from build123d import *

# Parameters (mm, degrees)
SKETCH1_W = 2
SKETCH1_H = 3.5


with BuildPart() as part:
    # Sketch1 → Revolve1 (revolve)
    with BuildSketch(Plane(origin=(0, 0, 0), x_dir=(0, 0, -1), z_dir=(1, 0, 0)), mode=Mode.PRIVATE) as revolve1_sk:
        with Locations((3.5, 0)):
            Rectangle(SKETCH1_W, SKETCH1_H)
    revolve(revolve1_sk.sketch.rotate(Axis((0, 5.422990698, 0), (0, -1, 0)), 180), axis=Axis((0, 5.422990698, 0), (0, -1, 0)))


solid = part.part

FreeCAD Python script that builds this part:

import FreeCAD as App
import Part
import Sketcher

V = App.Vector
Q = App.Units.Quantity


def add_polygon(sketch, points):
    """Adds a closed chain of lines whose ends are joined by coincident constraints."""
    first, n = sketch.GeometryCount, len(points)
    for a, b in zip(points, points[1:] + points[:1]):
        sketch.addGeometry(Part.LineSegment(App.Vector(*a, 0), App.Vector(*b, 0)), False)
    for i in range(n):
        sketch.addConstraint(Sketcher.Constraint("Coincident", first + i, 2, first + (i + 1) % n, 1))

doc = App.newDocument("Part")
body = doc.addObject("PartDesign::Body", "Body")

# Sketch on YZ plane
sketch1 = doc.addObject("Sketcher::SketchObject", "Sketch")
body.addObject(sketch1)
sketch1.AttachmentSupport = (doc.YZ_Plane, [""])
sketch1.MapMode = "FlatFace"
add_polygon(sketch1, [(1.75, -2.5), (-1.75, -2.5), (-1.75, -4.5), (1.75, -4.5)])  # lines 0-3
sketch1.addConstraint(Sketcher.Constraint("Horizontal", 0))
sketch1.addConstraint(Sketcher.Constraint("Vertical", 1))
sketch1.addConstraint(Sketcher.Constraint("Horizontal", 2))
sketch1.addConstraint(Sketcher.Constraint("Vertical", 3))
sketch1.addConstraint(Sketcher.Constraint("DistanceY", 1, 2, 1, 1, Q("2 mm")))
sketch1.addConstraint(Sketcher.Constraint("DistanceX", 0, 2, 0, 1, Q("3.5 mm")))
sketch1.addConstraint(Sketcher.Constraint("DistanceY", 0, 2, -1, 1, Q("2.5 mm")))
sketch1.addConstraint(Sketcher.Constraint("DistanceX", 0, 2, -1, 1, Q("1.75 mm")))
revolution = doc.addObject("PartDesign::Revolution", "Revolution")
body.addObject(revolution)
revolution.Profile = sketch1
revolution.ReferenceAxis = (sketch1, ["H_Axis"])
revolution.Angle = 360

doc.recompute()
